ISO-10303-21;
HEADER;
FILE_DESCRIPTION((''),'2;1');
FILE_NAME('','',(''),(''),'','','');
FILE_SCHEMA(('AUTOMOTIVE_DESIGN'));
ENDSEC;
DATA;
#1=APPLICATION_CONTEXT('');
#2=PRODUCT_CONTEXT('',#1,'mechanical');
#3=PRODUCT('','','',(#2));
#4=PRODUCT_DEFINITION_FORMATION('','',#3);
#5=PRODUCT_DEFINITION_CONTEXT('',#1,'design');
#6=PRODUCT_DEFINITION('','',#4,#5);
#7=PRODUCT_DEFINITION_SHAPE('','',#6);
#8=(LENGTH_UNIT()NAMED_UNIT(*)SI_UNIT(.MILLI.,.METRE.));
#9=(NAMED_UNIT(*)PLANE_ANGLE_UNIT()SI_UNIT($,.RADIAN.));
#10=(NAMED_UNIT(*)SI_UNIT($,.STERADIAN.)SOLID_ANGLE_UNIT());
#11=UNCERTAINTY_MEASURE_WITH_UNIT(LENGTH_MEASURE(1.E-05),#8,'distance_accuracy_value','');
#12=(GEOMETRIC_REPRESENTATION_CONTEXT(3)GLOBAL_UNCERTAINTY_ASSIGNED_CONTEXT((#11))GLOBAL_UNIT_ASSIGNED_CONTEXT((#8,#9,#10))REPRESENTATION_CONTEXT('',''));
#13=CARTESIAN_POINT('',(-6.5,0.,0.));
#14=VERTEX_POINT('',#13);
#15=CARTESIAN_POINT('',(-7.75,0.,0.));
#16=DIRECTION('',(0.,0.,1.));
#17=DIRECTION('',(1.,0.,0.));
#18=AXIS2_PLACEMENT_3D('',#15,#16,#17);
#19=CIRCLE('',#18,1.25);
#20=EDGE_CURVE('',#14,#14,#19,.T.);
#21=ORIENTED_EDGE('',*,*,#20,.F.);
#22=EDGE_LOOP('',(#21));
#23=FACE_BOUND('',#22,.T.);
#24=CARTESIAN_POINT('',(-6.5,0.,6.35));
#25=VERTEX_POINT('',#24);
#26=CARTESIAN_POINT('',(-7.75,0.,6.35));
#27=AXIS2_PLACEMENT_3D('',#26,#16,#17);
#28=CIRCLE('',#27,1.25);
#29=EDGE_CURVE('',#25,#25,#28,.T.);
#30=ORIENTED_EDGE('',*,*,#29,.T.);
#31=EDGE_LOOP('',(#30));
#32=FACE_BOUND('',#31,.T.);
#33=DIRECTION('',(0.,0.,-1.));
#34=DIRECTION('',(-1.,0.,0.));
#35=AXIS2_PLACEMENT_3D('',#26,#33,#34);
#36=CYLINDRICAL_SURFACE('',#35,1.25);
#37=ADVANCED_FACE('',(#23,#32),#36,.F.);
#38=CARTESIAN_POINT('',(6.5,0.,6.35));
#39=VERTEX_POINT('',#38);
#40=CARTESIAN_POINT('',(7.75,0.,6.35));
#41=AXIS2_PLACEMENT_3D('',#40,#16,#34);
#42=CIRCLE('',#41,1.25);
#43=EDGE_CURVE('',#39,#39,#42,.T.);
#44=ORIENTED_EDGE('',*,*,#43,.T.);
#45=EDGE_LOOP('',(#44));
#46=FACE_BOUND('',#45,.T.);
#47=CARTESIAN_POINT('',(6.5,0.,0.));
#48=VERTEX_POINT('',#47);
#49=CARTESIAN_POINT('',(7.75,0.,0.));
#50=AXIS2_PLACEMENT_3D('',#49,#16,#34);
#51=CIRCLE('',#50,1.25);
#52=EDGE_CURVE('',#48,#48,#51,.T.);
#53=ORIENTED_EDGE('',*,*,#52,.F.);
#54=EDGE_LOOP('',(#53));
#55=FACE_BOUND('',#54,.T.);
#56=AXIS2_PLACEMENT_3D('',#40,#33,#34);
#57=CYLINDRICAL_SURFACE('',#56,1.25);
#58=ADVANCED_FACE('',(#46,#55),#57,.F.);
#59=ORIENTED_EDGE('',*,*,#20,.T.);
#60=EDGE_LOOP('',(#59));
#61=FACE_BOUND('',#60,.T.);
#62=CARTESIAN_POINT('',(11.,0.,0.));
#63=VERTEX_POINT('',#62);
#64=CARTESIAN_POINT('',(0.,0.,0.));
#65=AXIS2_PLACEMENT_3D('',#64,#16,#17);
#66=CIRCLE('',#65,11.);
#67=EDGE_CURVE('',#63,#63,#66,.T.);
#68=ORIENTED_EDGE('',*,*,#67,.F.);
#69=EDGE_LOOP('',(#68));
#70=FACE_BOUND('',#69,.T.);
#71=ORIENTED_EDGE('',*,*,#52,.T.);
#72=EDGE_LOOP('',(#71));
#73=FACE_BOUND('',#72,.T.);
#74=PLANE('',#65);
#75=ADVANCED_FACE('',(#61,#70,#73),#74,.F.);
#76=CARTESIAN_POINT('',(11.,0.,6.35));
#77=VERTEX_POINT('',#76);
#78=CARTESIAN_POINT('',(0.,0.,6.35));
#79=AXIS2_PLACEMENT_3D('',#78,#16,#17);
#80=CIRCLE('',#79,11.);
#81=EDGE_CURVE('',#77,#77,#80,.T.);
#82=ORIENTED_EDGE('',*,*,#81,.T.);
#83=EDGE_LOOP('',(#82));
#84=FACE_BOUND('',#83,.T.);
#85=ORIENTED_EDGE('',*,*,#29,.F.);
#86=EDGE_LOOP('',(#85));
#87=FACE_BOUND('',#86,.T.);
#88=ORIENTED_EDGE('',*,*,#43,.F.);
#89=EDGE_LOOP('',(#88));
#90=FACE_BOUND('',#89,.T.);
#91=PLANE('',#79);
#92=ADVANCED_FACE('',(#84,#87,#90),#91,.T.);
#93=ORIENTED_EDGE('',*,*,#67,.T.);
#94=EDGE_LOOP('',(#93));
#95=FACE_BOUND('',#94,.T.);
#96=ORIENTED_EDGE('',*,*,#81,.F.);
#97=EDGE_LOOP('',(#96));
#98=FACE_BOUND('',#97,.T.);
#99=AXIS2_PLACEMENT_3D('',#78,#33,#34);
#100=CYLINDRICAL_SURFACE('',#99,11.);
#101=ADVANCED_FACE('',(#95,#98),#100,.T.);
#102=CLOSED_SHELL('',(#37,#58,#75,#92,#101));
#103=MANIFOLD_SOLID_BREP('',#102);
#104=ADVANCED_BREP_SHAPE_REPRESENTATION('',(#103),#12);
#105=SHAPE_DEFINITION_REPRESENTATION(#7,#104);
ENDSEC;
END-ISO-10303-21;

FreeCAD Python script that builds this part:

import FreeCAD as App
import Part
import Sketcher
from FreeCAD import Vector
Q = App.Units.Quantity

doc = App.newDocument("Part")
body = doc.addObject("PartDesign::Body", "Body")

# Sketch on XY plane
sketch1 = body.newObject("Sketcher::SketchObject", "Sketch")
sketch1.AttachmentSupport = (doc.getObject("XY_Plane"), [""])
sketch1.MapMode = "FlatFace"
sketch1.addGeometry(Part.Circle(Vector(0, 0, 0), Vector(0, 0, 1), 11), False)
sketch1.addGeometry(Part.Circle(Vector(-7.75, 0, 0), Vector(0, 0, 1), 1.25), False)
sketch1.addGeometry(Part.Circle(Vector(7.75, 0, 0), Vector(0, 0, 1), 1.25), False)
sketch1.addConstraint(Sketcher.Constraint("Coincident", 0, 3, -1, 1))
sketch1.addConstraint(Sketcher.Constraint("Equal", 1, 2))
sketch1.addConstraint(Sketcher.Constraint("Symmetric", 1, 3, 2, 3, -1, 1))
sketch1.addConstraint(Sketcher.Constraint("PointOnObject", 1, 3, -1))
sketch1.addConstraint(Sketcher.Constraint("Diameter", 0, Q("22 mm")))
sketch1.addConstraint(Sketcher.Constraint("Diameter", 1, Q("2.5 mm")))
sketch1.addConstraint(Sketcher.Constraint("DistanceX", 1, 3, 2, 3, Q("15.5 mm")))
pad1 = body.newObject("PartDesign::Pad", "Pad")
pad1.Profile = sketch1
pad1.Length = 6.35

doc.recompute()
